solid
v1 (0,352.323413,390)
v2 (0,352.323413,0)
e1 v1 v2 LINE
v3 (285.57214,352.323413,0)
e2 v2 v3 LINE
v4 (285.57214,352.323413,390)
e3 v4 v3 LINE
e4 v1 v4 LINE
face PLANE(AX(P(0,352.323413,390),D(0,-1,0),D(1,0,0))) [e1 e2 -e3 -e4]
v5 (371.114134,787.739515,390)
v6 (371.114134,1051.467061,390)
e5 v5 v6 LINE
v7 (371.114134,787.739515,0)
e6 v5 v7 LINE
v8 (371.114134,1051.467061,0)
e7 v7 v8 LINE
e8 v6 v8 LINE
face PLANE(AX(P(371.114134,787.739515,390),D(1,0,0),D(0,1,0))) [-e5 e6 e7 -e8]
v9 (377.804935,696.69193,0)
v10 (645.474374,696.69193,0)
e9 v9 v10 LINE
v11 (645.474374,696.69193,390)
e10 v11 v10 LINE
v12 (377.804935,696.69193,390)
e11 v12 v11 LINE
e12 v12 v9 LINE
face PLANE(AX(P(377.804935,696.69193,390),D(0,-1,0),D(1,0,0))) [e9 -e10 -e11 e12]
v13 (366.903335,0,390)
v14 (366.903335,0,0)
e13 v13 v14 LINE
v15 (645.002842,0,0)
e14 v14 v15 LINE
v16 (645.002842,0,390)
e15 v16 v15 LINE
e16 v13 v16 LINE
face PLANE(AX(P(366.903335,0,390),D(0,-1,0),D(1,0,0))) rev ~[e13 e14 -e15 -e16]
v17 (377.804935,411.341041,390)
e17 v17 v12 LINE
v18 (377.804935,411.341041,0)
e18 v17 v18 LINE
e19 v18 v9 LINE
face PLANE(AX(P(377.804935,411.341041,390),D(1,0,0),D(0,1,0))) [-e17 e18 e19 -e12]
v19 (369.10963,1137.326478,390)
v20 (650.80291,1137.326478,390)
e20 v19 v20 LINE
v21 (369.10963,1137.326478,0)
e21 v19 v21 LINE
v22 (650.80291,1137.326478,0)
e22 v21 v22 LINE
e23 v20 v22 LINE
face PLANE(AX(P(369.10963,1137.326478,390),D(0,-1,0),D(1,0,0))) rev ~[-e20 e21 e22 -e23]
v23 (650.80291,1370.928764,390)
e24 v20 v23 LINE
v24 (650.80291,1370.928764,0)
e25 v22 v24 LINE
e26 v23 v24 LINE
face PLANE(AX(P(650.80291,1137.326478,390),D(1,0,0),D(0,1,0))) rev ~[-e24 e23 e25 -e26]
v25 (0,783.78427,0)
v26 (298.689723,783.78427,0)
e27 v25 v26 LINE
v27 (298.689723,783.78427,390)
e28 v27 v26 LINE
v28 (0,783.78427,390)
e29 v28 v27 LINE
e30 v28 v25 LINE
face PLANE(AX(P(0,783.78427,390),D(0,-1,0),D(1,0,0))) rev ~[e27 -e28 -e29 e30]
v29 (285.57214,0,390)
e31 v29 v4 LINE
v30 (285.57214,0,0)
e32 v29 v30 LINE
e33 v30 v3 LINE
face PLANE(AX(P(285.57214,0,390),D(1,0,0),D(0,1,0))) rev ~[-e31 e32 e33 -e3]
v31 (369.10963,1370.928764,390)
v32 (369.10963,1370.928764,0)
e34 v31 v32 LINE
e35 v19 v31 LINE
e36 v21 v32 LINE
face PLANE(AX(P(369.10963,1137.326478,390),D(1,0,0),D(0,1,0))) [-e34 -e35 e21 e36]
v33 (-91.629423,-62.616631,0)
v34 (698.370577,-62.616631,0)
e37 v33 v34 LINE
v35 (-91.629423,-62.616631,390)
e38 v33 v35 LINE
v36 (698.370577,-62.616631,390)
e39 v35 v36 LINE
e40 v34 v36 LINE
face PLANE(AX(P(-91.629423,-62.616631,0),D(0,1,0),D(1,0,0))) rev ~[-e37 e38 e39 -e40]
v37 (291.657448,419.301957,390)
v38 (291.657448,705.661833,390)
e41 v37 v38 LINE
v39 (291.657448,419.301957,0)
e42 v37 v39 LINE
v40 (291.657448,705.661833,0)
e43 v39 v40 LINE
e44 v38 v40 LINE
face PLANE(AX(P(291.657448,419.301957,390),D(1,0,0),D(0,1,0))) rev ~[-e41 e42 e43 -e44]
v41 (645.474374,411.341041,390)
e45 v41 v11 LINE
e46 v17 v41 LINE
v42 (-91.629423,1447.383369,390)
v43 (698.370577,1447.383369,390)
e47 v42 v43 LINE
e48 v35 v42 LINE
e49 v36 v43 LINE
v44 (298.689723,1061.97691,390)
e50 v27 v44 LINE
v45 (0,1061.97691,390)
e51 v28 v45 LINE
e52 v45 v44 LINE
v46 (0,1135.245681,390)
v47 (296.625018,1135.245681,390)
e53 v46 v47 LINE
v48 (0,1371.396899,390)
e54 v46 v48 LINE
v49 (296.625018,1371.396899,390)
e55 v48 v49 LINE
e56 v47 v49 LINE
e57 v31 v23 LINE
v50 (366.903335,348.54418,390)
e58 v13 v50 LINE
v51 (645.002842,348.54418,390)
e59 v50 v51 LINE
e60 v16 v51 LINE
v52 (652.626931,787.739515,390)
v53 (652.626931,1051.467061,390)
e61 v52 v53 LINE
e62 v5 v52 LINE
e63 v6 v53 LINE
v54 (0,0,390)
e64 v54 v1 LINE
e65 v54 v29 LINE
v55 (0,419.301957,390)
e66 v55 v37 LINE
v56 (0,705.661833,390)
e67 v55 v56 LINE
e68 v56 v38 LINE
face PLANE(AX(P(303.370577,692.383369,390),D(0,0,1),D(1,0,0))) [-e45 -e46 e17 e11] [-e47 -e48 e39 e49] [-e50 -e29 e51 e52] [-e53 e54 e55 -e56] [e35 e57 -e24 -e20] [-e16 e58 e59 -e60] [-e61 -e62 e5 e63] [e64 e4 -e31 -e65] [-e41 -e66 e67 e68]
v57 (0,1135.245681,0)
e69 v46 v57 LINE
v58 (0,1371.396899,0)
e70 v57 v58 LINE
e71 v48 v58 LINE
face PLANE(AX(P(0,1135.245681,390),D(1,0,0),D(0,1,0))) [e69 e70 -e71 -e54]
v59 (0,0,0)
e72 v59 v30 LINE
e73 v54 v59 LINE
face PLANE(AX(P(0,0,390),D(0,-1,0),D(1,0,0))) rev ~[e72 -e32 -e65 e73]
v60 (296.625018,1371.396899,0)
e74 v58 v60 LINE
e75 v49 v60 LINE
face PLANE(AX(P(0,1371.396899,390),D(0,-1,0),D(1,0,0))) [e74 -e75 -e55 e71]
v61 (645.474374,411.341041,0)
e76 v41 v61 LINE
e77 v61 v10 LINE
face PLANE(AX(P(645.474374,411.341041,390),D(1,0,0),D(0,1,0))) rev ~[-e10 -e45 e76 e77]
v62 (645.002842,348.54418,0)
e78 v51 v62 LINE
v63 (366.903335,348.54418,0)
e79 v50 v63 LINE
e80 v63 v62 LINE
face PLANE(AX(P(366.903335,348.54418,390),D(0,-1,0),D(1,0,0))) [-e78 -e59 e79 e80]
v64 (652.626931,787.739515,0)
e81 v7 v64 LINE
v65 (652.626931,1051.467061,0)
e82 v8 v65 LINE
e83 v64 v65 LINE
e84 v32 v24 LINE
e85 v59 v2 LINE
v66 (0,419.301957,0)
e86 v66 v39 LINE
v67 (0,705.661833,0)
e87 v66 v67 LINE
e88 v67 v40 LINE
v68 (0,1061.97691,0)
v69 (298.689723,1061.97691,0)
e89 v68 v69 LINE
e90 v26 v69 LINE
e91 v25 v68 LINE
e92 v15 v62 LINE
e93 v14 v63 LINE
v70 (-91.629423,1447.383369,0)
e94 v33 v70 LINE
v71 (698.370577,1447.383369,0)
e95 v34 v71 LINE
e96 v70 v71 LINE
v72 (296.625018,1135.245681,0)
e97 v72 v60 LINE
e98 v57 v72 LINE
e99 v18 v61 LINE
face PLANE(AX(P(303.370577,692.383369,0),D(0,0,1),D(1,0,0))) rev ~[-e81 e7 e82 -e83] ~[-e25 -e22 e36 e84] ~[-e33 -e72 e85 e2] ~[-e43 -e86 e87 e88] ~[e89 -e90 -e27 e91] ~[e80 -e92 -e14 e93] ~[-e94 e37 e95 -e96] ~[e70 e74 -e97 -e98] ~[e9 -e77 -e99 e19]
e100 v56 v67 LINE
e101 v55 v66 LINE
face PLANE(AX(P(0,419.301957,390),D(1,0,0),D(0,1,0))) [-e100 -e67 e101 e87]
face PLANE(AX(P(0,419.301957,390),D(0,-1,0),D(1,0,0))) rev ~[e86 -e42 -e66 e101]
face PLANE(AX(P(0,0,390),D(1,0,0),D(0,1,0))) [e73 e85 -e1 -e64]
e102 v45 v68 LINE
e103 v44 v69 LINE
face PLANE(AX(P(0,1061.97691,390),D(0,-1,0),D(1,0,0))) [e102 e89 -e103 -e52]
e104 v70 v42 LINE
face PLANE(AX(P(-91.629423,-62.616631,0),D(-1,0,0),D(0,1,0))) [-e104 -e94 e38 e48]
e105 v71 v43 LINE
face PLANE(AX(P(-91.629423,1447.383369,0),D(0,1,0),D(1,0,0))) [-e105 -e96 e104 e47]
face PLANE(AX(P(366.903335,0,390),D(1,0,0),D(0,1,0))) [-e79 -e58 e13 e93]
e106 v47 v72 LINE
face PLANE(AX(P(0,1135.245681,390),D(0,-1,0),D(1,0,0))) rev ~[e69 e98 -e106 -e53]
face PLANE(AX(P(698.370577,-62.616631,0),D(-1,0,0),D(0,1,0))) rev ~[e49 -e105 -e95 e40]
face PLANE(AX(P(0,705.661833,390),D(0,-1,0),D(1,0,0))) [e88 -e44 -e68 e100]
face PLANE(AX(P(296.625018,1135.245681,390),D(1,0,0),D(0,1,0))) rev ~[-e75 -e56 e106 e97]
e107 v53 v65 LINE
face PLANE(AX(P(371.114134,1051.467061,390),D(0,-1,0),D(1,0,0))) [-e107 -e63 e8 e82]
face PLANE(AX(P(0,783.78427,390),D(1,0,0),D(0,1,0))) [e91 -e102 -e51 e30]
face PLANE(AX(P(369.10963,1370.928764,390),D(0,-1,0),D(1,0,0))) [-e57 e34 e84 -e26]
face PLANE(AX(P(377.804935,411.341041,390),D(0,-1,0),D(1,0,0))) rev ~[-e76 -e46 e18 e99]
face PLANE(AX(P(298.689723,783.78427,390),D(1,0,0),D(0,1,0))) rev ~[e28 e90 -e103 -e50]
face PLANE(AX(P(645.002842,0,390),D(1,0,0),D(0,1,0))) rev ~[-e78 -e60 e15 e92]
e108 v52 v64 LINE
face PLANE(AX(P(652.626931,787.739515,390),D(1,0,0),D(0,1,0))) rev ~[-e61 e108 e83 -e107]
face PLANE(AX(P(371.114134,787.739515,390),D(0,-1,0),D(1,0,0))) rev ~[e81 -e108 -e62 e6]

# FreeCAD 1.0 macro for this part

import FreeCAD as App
import Part
import Sketcher

V = App.Vector

doc = App.newDocument("Part")
body = doc.addObject("PartDesign::Body", "Body")

# Sketch on XY plane
sketch1 = body.newObject("Sketcher::SketchObject", "Sketch")
sketch1.AttachmentSupport = (doc.getObject("XY_Plane"), [""])
sketch1.MapMode = "FlatFace"
sketch1.addGeometry([
    Part.LineSegment(V(-91.629423, 1447.383369, 0), V(-91.629423, -62.616631, 0)),
    Part.LineSegment(V(-91.629423, -62.616631, 0), V(698.370577, -62.616631, 0)),
    Part.LineSegment(V(698.370577, -62.616631, 0), V(698.370577, 1447.383369, 0)),
    Part.LineSegment(V(698.370577, 1447.383369, 0), V(-91.629423, 1447.383369, 0)),
], False)
sketch1.addConstraint([
    Sketcher.Constraint("Coincident", 0, 2, 1, 1),
    Sketcher.Constraint("Coincident", 1, 2, 2, 1),
    Sketcher.Constraint("Coincident", 2, 2, 3, 1),
    Sketcher.Constraint("Coincident", 3, 2, 0, 1),
    Sketcher.Constraint("Vertical", 0),
    Sketcher.Constraint("Horizontal", 1),
    Sketcher.Constraint("Vertical", 2),
    Sketcher.Constraint("Horizontal", 3),
    Sketcher.Constraint("DistanceX", 1, 1, 1, 2, 790.0),
    Sketcher.Constraint("DistanceY", 0, 2, 0, 1, 1510.0),
    Sketcher.Constraint("DistanceY", 0, 2, -1, 1, 62.616631),
    Sketcher.Constraint("DistanceX", 0, 2, -1, 1, 91.629423),
])
pad1 = body.newObject("PartDesign::Pad", "Pad")
pad1.Profile = sketch1
pad1.Length = 390

# Sketch on XY plane
sketch2 = body.newObject("Sketcher::SketchObject", "Sketch001")
sketch2.AttachmentSupport = (doc.getObject("XY_Plane"), [""])
sketch2.MapMode = "FlatFace"
sketch2.AttachmentOffset = App.Placement(V(0, 0, 390), App.Rotation())
sketch2.addGeometry([
    Part.LineSegment(V(366.903335, 348.54418, 0), V(366.903335, 0, 0)),  # 0
    Part.LineSegment(V(366.903335, 0, 0), V(645.002842, 0, 0)),  # 1
    Part.LineSegment(V(645.002842, 0, 0), V(645.002842, 348.54418, 0)),  # 2
    Part.LineSegment(V(645.002842, 348.54418, 0), V(366.903335, 348.54418, 0)),  # 3
    Part.LineSegment(V(0, 352.323413, 0), V(0, 0, 0)),  # 4
    Part.LineSegment(V(0, 0, 0), V(285.57214, 0, 0)),  # 5
    Part.LineSegment(V(285.57214, 0, 0), V(285.57214, 352.323413, 0)),  # 6
    Part.LineSegment(V(285.57214, 352.323413, 0), V(0, 352.323413, 0)),  # 7
    Part.LineSegment(V(0, 705.661833, 0), V(0, 419.301957, 0)),  # 8
    Part.LineSegment(V(0, 419.301957, 0), V(291.657448, 419.301957, 0)),  # 9
    Part.LineSegment(V(291.657448, 419.301957, 0), V(291.657448, 705.661833, 0)),  # 10
    Part.LineSegment(V(291.657448, 705.661833, 0), V(0, 705.661833, 0)),  # 11
    Part.LineSegment(V(0, 1061.97691, 0), V(0, 783.78427, 0)),  # 12
    Part.LineSegment(V(0, 783.78427, 0), V(298.689723, 783.78427, 0)),  # 13
    Part.LineSegment(V(298.689723, 783.78427, 0), V(298.689723, 1061.97691, 0)),  # 14
    Part.LineSegment(V(298.689723, 1061.97691, 0), V(0, 1061.97691, 0)),  # 15
    Part.LineSegment(V(0, 1371.396899, 0), V(0, 1135.245681, 0)),  # 16
    Part.LineSegment(V(0, 1135.245681, 0), V(296.625018, 1135.245681, 0)),  # 17
    Part.LineSegment(V(296.625018, 1135.245681, 0), V(296.625018, 1371.396899, 0)),  # 18
    Part.LineSegment(V(296.625018, 1371.396899, 0), V(0, 1371.396899, 0)),  # 19
    Part.LineSegment(V(369.10963, 1370.928764, 0), V(369.10963, 1137.326478, 0)),  # 20
    Part.LineSegment(V(369.10963, 1137.326478, 0), V(650.80291, 1137.326478, 0)),  # 21
    Part.LineSegment(V(650.80291, 1137.326478, 0), V(650.80291, 1370.928764, 0)),  # 22
    Part.LineSegment(V(650.80291, 1370.928764, 0), V(369.10963, 1370.928764, 0)),  # 23
    Part.LineSegment(V(371.114134, 1051.467061, 0), V(371.114134, 787.739515, 0)),  # 24
    Part.LineSegment(V(371.114134, 787.739515, 0), V(652.626931, 787.739515, 0)),  # 25
    Part.LineSegment(V(652.626931, 787.739515, 0), V(652.626931, 1051.467061, 0)),  # 26
    Part.LineSegment(V(652.626931, 1051.467061, 0), V(371.114134, 1051.467061, 0)),  # 27
    Part.LineSegment(V(377.804935, 696.69193, 0), V(377.804935, 411.341041, 0)),  # 28
    Part.LineSegment(V(377.804935, 411.341041, 0), V(645.474374, 411.341041, 0)),  # 29
    Part.LineSegment(V(645.474374, 411.341041, 0), V(645.474374, 696.69193, 0)),  # 30
    Part.LineSegment(V(645.474374, 696.69193, 0), V(377.804935, 696.69193, 0)),  # 31
], False)
sketch2.addConstraint([
    Sketcher.Constraint("Coincident", 0, 2, 1, 1),
    Sketcher.Constraint("Coincident", 1, 2, 2, 1),
    Sketcher.Constraint("Coincident", 2, 2, 3, 1),
    Sketcher.Constraint("Coincident", 3, 2, 0, 1),
    Sketcher.Constraint("Coincident", 4, 2, 5, 1),
    Sketcher.Constraint("Coincident", 5, 2, 6, 1),
    Sketcher.Constraint("Coincident", 6, 2, 7, 1),
    Sketcher.Constraint("Coincident", 7, 2, 4, 1),
    Sketcher.Constraint("Coincident", 8, 2, 9, 1),
    Sketcher.Constraint("Coincident", 9, 2, 10, 1),
    Sketcher.Constraint("Coincident", 10, 2, 11, 1),
    Sketcher.Constraint("Coincident", 11, 2, 8, 1),
    Sketcher.Constraint("Coincident", 12, 2, 13, 1),
    Sketcher.Constraint("Coincident", 13, 2, 14, 1),
    Sketcher.Constraint("Coincident", 14, 2, 15, 1),
    Sketcher.Constraint("Coincident", 15, 2, 12, 1),
    Sketcher.Constraint("Coincident", 16, 2, 17, 1),
    Sketcher.Constraint("Coincident", 17, 2, 18, 1),
    Sketcher.Constraint("Coincident", 18, 2, 19, 1),
    Sketcher.Constraint("Coincident", 19, 2, 16, 1),
    Sketcher.Constraint("Coincident", 20, 2, 21, 1),
    Sketcher.Constraint("Coincident", 21, 2, 22, 1),
    Sketcher.Constraint("Coincident", 22, 2, 23, 1),
    Sketcher.Constraint("Coincident", 23, 2, 20, 1),
    Sketcher.Constraint("Coincident", 24, 2, 25, 1),
    Sketcher.Constraint("Coincident", 25, 2, 26, 1),
    Sketcher.Constraint("Coincident", 26, 2, 27, 1),
    Sketcher.Constraint("Coincident", 27, 2, 24, 1),
    Sketcher.Constraint("Coincident", 28, 2, 29, 1),
    Sketcher.Constraint("Coincident", 29, 2, 30, 1),
    Sketcher.Constraint("Coincident", 30, 2, 31, 1),
    Sketcher.Constraint("Coincident", 31, 2, 28, 1),
    Sketcher.Constraint("Vertical", 0),
    Sketcher.Constraint("Horizontal", 1),
    Sketcher.Constraint("Vertical", 2),
    Sketcher.Constraint("Horizontal", 3),
    Sketcher.Constraint("Vertical", 4),
    Sketcher.Constraint("Horizontal", 5),
    Sketcher.Constraint("Vertical", 6),
    Sketcher.Constraint("Horizontal", 7),
    Sketcher.Constraint("Vertical", 8),
    Sketcher.Constraint("Horizontal", 9),
    Sketcher.Constraint("Vertical", 10),
    Sketcher.Constraint("Horizontal", 11),
    Sketcher.Constraint("Vertical", 12),
    Sketcher.Constraint("Horizontal", 13),
    Sketcher.Constraint("Vertical", 14),
    Sketcher.Constraint("Horizontal", 15),
    Sketcher.Constraint("Vertical", 16),
    Sketcher.Constraint("Horizontal", 17),
    Sketcher.Constraint("Vertical", 18),
    Sketcher.Constraint("Horizontal", 19),
    Sketcher.Constraint("Vertical", 20),
    Sketcher.Constraint("Horizontal", 21),
    Sketcher.Constraint("Vertical", 22),
    Sketcher.Constraint("Horizontal", 23),
    Sketcher.Constraint("Vertical", 24),
    Sketcher.Constraint("Horizontal", 25),
    Sketcher.Constraint("Vertical", 26),
    Sketcher.Constraint("Horizontal", 27),
    Sketcher.Constraint("Vertical", 28),
    Sketcher.Constraint("Horizontal", 29),
    Sketcher.Constraint("Vertical", 30),
    Sketcher.Constraint("Horizontal", 31),
    Sketcher.Constraint("Coincident", 4, 2, -1, 1),
    Sketcher.Constraint("PointOnObject", 0, 2, -1),
    Sketcher.Constraint("PointOnObject", 8, 2, -2),
    Sketcher.Constraint("PointOnObject", 12, 2, -2),
    Sketcher.Constraint("PointOnObject", 16, 2, -2),
    Sketcher.Constraint("DistanceX", 5, 1, 5, 2, 285.572141),
    Sketcher.Constraint("DistanceX", 9, 1, 9, 2, 291.657448),
    Sketcher.Constraint("DistanceX", 17, 1, 17, 2, 296.625018),
    Sketcher.Constraint("DistanceX", 21, 1, 21, 2, 281.693279),
    Sketcher.Constraint("DistanceX", 29, 1, 29, 2, 267.669439),
    Sketcher.Constraint("DistanceY", 0, 2, 0, 1, 348.54418),
    Sketcher.Constraint("DistanceY", 12, 2, 12, 1, 278.19264),
    Sketcher.Constraint("DistanceY", 28, 2, 28, 1, 285.350889),
    Sketcher.Constraint("DistanceY", -1, 1, 18, 2, 1371.396899),
    Sketcher.Constraint("DistanceX", 5, 2, 1, 2, 359.430701),
    Sketcher.Constraint("DistanceX", 20, 2, 26, 2, 283.517301),
    Sketcher.Constraint("DistanceX", 3, 2, 28, 2, 10.901601),
    Sketcher.Constraint("DistanceX", 24, 2, 31, 2, 6.690801),
    Sketcher.Constraint("DistanceX", 1, 1, 1, 2, 278.099507),
    Sketcher.Constraint("DistanceX", 13, 1, 13, 2, 298.689723),
    Sketcher.Constraint("DistanceX", 25, 1, 25, 2, 281.512797),
    Sketcher.Constraint("DistanceY", 4, 2, 4, 1, 352.323413),
    Sketcher.Constraint("DistanceY", 8, 2, 8, 1, 286.359876),
    Sketcher.Constraint("DistanceY", 16, 2, 16, 1, 236.151218),
    Sketcher.Constraint("DistanceY", 20, 2, 20, 1, 233.602285),
    Sketcher.Constraint("DistanceY", 24, 2, 24, 1, 263.727546),
    Sketcher.Constraint("DistanceY", -1, 1, 12, 2, 783.78427),
    Sketcher.Constraint("DistanceY", -1, 1, 20, 2, 1137.326478),
    Sketcher.Constraint("DistanceY", -1, 1, 26, 2, 1051.467061),
    Sketcher.Constraint("DistanceY", -1, 1, 28, 2, 411.341041),
    Sketcher.Constraint("DistanceY", 6, 2, 10, 2, 353.33842),
])
pocket1 = body.newObject("PartDesign::Pocket", "Pocket")
pocket1.Profile = sketch2
pocket1.Type = "ThroughAll"

doc.recompute()
